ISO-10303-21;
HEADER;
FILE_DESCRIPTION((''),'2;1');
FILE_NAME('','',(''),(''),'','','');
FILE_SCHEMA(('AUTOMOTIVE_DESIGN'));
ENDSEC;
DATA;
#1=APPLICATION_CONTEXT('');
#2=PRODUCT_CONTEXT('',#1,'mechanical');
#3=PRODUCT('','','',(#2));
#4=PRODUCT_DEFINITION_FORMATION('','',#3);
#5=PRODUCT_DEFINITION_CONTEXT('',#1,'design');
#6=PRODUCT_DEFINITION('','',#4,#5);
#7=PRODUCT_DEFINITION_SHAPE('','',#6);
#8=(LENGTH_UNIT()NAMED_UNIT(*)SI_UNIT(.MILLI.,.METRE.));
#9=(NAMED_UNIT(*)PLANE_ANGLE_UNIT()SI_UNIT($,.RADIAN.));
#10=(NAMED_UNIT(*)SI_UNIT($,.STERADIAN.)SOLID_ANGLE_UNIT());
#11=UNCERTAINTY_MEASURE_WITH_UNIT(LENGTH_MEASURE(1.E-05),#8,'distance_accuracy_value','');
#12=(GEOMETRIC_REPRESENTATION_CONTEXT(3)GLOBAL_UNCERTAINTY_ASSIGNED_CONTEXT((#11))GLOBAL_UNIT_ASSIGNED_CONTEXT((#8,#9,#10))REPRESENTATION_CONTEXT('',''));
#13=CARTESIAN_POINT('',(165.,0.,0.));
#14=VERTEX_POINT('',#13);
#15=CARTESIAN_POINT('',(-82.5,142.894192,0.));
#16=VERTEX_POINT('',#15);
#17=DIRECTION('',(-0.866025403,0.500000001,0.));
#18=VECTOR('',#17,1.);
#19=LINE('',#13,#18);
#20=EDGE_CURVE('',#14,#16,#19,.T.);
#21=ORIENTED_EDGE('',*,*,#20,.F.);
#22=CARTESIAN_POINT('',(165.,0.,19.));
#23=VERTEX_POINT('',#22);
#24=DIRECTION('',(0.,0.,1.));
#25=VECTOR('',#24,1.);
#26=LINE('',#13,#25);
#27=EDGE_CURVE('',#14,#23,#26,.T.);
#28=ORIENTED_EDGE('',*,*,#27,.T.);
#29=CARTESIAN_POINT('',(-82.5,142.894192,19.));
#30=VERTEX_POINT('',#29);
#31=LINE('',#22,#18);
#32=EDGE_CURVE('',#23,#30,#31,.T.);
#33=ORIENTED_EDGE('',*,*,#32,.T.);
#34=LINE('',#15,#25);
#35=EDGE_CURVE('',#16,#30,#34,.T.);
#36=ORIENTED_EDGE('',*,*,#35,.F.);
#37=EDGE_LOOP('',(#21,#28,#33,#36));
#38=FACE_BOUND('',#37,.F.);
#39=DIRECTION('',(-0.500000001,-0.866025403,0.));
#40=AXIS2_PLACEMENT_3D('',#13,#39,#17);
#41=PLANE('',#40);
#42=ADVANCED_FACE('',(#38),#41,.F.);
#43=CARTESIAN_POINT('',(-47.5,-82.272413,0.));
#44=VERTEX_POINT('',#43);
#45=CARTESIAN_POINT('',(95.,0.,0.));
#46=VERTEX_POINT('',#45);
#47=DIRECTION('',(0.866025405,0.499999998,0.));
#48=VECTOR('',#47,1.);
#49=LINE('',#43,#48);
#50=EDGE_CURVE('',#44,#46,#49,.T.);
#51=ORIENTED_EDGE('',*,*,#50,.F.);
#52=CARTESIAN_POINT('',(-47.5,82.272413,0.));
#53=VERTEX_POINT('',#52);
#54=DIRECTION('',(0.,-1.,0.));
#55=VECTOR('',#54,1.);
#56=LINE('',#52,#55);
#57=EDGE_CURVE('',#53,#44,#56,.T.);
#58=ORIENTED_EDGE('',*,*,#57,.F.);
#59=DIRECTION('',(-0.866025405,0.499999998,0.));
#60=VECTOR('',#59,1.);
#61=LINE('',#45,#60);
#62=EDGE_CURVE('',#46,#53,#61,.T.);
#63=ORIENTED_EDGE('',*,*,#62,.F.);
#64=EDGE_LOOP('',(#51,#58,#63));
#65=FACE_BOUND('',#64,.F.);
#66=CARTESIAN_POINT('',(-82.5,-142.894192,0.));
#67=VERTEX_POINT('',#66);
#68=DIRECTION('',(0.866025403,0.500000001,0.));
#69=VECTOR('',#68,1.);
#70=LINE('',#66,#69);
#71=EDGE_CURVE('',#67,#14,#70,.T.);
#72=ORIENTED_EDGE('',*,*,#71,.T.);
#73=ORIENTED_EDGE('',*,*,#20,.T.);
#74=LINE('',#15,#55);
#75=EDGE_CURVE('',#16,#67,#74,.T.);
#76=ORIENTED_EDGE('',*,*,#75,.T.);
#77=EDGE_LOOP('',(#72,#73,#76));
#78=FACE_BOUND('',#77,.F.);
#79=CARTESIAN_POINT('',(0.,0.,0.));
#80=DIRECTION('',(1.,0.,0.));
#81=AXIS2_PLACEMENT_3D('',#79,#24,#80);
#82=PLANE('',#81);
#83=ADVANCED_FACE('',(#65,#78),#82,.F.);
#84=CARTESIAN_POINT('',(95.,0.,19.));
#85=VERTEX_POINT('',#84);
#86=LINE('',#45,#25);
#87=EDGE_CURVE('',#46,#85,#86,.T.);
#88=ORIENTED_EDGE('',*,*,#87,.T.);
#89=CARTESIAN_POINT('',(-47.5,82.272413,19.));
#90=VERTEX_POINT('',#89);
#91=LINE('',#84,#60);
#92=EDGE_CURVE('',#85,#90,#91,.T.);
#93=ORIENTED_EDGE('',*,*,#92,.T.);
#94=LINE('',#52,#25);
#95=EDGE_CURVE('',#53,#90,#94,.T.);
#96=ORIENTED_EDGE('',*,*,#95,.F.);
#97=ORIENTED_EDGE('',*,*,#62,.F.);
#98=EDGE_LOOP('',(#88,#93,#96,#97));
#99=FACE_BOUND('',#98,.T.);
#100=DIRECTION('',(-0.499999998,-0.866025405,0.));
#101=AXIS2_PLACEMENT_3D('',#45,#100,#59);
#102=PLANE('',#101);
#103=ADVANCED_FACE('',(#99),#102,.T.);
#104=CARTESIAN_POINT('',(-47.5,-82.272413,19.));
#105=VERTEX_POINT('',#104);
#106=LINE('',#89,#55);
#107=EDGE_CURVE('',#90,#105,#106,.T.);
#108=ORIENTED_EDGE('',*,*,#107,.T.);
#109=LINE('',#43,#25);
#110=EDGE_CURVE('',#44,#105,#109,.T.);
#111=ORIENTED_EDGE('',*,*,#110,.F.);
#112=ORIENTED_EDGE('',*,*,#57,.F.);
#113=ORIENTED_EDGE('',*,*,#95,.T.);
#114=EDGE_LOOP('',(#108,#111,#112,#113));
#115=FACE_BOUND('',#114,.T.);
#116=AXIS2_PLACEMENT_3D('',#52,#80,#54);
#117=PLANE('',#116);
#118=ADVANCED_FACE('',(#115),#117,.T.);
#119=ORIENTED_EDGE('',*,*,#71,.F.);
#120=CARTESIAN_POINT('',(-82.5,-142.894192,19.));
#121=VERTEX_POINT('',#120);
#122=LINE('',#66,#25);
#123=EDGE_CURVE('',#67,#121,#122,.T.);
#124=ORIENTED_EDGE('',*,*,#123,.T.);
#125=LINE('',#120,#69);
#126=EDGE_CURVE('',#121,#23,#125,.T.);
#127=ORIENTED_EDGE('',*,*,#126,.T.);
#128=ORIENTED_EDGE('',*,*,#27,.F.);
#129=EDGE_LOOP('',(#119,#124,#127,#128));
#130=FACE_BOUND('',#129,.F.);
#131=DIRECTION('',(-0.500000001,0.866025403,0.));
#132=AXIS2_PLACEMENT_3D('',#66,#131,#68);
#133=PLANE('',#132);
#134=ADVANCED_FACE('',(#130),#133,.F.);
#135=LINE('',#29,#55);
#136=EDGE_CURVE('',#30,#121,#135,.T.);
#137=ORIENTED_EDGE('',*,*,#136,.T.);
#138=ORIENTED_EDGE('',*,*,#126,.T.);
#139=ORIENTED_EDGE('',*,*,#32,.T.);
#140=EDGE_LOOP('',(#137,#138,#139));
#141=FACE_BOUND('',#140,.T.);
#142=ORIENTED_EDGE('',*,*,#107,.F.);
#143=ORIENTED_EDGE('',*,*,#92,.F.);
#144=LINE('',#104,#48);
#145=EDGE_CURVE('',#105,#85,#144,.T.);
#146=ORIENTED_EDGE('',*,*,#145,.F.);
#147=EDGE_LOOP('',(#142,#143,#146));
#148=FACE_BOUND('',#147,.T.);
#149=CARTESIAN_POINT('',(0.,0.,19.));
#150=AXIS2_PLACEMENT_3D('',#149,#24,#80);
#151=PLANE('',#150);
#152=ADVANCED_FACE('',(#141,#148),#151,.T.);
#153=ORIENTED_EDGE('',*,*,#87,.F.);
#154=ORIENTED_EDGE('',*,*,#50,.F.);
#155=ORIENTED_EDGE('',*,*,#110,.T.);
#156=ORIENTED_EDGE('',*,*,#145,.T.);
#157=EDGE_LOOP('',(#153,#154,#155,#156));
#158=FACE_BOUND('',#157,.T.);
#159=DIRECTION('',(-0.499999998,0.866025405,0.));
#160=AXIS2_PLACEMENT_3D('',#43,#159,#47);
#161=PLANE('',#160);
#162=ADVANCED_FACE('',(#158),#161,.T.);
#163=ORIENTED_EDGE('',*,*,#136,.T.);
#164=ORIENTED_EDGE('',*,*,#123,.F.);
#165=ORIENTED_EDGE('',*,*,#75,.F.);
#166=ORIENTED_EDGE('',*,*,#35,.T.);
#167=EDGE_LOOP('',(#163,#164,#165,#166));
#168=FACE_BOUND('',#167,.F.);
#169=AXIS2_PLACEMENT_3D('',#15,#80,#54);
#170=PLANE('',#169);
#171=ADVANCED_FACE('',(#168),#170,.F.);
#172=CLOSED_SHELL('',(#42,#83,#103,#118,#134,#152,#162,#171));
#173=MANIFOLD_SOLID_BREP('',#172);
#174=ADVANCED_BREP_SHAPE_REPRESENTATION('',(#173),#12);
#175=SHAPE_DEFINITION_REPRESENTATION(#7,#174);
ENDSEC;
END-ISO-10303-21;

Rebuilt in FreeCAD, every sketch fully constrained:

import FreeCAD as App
import Part
import Sketcher

V = App.Vector
Q = App.Units.Quantity

doc = App.newDocument("Part")
body = doc.addObject("PartDesign::Body", "Body")

# Sketch on XY plane
sketch1 = doc.addObject("Sketcher::SketchObject", "Sketch")
body.addObject(sketch1)
sketch1.AttachmentSupport = (doc.XY_Plane, [""])
sketch1.MapMode = "FlatFace"
sketch1.addGeometry([
    Part.LineSegment(V(95, 0, 0), V(-48, 82, 0)),
    Part.LineSegment(V(-48, 82, 0), V(-48, -82, 0)),
    Part.LineSegment(V(-48, -82, 0), V(95, 0, 0)),
], False)
sketch1.addConstraint([
    Sketcher.Constraint("Coincident", 0, 2, 1, 1),
    Sketcher.Constraint("Coincident", 1, 2, 2, 1),
    Sketcher.Constraint("Coincident", 2, 2, 0, 1),
    Sketcher.Constraint("Vertical", 1),
    Sketcher.Constraint("PointOnObject", 2, 2, -1),
    Sketcher.Constraint("Equal", 0, 2),
    Sketcher.Constraint("Angle", 0, Q("150 deg")),
    Sketcher.Constraint("DistanceX", -1, 1, 2, 2, Q("95 mm")),
    Sketcher.Constraint("DistanceX", 0, 2, -1, 1, Q("47.5 mm")),
])
pad1 = doc.addObject("PartDesign::Pad", "Pad")
body.addObject(pad1)
pad1.Profile = sketch1
pad1.Length = 19
body2 = doc.addObject("PartDesign::Body", "Body001")

# Sketch on XY plane
sketch2 = doc.addObject("Sketcher::SketchObject", "Sketch001")
body2.addObject(sketch2)
sketch2.AttachmentSupport = (doc.getObject("XY_Plane001"), [""])
sketch2.MapMode = "FlatFace"
sketch2.addGeometry([
    Part.LineSegment(V(165, 0, 0), V(-82, 143, 0)),
    Part.LineSegment(V(-82, 143, 0), V(-82, -143, 0)),
    Part.LineSegment(V(-82, -143, 0), V(165, 0, 0)),
], False)
sketch2.addConstraint([
    Sketcher.Constraint("Coincident", 0, 2, 1, 1),
    Sketcher.Constraint("Coincident", 1, 2, 2, 1),
    Sketcher.Constraint("Coincident", 2, 2, 0, 1),
    Sketcher.Constraint("Vertical", 1),
    Sketcher.Constraint("PointOnObject", 2, 2, -1),
    Sketcher.Constraint("Equal", 0, 2),
    Sketcher.Constraint("Angle", 0, Q("150 deg")),
    Sketcher.Constraint("DistanceX", -1, 1, 2, 2, Q("165 mm")),
    Sketcher.Constraint("DistanceX", 0, 2, -1, 1, Q("82.5 mm")),
])
pad2 = doc.addObject("PartDesign::Pad", "Pad001")
body2.addObject(pad2)
pad2.Profile = sketch2
pad2.Length = 19
doc.recompute()

boolean = doc.addObject("PartDesign::Boolean", "Boolean")
body2.addObject(boolean)
boolean.Type = "Cut"
boolean.addObjects([body])

doc.recompute()
